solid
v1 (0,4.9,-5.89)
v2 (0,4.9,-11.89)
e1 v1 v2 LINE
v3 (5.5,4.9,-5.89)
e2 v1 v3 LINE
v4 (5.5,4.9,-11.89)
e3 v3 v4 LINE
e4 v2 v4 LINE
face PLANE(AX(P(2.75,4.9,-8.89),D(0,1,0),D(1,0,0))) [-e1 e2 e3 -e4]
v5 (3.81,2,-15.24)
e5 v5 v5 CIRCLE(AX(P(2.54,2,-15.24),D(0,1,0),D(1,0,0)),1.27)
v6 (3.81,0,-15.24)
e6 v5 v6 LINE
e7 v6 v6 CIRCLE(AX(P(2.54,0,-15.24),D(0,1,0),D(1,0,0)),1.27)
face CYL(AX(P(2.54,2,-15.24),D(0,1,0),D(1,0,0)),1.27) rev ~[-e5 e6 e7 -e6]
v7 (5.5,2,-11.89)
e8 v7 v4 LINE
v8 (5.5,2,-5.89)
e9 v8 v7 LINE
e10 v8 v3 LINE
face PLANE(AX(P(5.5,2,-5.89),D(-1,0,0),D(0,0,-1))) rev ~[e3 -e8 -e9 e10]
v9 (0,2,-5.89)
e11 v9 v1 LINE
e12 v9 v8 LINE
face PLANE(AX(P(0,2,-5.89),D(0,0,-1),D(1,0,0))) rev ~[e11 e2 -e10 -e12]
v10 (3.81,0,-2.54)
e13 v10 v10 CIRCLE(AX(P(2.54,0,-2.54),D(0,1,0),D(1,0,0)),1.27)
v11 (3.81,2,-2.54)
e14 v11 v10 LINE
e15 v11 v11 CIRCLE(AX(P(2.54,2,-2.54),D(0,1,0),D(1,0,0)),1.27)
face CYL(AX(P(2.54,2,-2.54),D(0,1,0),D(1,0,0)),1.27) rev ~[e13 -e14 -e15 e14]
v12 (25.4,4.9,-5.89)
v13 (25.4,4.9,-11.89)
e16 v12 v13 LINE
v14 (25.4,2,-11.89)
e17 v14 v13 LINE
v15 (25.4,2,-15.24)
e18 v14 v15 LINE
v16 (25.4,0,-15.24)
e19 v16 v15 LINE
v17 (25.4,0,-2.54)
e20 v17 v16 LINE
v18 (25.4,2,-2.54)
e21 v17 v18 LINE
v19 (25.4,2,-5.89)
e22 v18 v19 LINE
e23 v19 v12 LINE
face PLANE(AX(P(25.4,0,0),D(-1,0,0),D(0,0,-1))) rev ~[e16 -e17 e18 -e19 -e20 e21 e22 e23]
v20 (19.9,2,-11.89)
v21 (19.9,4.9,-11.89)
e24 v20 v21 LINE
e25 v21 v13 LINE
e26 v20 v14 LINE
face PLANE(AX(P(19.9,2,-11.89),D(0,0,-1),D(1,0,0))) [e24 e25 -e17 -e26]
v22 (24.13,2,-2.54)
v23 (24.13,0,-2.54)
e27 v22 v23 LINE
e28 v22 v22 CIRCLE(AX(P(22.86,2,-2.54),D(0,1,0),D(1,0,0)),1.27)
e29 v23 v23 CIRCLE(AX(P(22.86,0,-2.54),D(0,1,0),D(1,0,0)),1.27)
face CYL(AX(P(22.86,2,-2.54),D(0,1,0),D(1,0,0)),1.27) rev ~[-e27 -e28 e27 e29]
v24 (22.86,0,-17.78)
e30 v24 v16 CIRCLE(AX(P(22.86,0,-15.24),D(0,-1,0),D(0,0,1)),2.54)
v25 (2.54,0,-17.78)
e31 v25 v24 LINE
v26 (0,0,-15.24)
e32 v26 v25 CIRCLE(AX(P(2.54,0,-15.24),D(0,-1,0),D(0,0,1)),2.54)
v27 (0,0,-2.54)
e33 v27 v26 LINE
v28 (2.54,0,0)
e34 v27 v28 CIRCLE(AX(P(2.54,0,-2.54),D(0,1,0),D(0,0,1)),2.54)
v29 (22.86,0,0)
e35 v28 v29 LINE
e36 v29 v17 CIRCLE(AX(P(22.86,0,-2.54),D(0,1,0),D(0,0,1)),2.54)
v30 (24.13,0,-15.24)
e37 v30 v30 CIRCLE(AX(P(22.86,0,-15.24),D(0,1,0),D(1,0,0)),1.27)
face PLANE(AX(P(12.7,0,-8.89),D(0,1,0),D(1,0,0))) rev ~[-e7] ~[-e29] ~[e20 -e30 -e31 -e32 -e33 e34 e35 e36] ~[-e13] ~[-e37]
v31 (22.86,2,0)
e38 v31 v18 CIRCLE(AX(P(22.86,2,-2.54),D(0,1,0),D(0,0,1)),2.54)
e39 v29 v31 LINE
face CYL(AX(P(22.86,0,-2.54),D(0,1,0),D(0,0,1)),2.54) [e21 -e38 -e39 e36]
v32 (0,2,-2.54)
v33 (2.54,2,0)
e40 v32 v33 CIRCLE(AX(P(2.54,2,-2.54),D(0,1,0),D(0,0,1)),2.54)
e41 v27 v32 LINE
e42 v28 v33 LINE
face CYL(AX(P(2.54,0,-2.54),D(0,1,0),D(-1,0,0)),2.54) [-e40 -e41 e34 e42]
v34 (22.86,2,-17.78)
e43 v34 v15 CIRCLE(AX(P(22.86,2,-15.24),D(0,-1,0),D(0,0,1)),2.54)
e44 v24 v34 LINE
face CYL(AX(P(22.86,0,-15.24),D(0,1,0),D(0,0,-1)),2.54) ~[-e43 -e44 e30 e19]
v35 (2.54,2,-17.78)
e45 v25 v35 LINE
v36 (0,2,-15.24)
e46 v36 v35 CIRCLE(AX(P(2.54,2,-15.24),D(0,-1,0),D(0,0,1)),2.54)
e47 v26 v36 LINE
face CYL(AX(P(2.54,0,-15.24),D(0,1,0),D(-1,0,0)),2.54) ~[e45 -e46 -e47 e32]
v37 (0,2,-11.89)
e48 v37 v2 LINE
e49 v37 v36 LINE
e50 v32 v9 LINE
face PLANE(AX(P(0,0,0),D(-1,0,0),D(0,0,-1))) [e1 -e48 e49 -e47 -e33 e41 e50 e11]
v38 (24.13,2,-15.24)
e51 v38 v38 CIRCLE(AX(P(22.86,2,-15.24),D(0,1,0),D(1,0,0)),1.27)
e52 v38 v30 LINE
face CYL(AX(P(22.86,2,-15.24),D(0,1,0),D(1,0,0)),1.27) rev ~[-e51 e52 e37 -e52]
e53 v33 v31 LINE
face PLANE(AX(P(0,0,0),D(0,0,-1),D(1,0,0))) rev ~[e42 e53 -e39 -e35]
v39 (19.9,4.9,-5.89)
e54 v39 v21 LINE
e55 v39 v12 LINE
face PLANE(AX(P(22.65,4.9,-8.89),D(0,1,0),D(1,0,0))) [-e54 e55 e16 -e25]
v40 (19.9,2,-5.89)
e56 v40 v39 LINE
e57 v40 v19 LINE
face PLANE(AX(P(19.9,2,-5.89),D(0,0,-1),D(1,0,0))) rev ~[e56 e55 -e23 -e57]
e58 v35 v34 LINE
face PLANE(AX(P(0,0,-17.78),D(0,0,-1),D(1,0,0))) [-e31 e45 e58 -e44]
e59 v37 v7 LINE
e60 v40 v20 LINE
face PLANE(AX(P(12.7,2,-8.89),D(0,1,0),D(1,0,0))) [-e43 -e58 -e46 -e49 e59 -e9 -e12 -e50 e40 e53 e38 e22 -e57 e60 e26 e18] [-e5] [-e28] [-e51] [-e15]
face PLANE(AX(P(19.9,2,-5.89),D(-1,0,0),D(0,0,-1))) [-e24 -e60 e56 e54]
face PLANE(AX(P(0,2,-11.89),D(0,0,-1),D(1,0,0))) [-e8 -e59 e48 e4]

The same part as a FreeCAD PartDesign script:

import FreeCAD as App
import Part
import Sketcher
from FreeCAD import Vector
Q = App.Units.Quantity


def edges_at(feature, points):
    """Names of the edges that pass closest to the given points."""
    edges = feature.Shape.Edges
    near = lambda p: min(range(len(edges)), key=lambda i: edges[i].distToShape(Part.Vertex(*p))[0])
    return sorted({f"Edge{near(p) + 1}" for p in points})


def add_polygon(sketch, points):
    """Adds a closed chain of lines whose ends are joined by coincident constraints."""
    first, n = sketch.GeometryCount, len(points)
    for a, b in zip(points, points[1:] + points[:1]):
        sketch.addGeometry(Part.LineSegment(App.Vector(*a, 0), App.Vector(*b, 0)), False)
    for i in range(n):
        sketch.addConstraint(Sketcher.Constraint("Coincident", first + i, 2, first + (i + 1) % n, 1))

doc = App.newDocument("Part")
body = doc.addObject("PartDesign::Body", "Body")

# Sketch on XZ plane
sketch1 = body.newObject("Sketcher::SketchObject", "Sketch")
sketch1.AttachmentSupport = (doc.getObject("XZ_Plane"), [""])
sketch1.MapMode = "FlatFace"
add_polygon(sketch1, [(0, -18), (0, 0), (25, 0), (25, -18)])  # lines 0-3
sketch1.addConstraint([
    Sketcher.Constraint("Vertical", 0),
    Sketcher.Constraint("Horizontal", 1),
    Sketcher.Constraint("Vertical", 2),
    Sketcher.Constraint("Horizontal", 3),
    Sketcher.Constraint("Coincident", 0, 2, -1, 1),
    Sketcher.Constraint("DistanceX", 1, 1, 1, 2, Q("25.4 mm")),
    Sketcher.Constraint("DistanceY", 0, 1, 0, 2, Q("17.78 mm")),
])
pad1 = body.newObject("PartDesign::Pad", "Pad")
pad1.Profile = sketch1
pad1.Length = 2
pad1.Reversed = True

# Sketch on XZ plane
sketch2 = body.newObject("Sketcher::SketchObject", "Sketch001")
sketch2.AttachmentSupport = (doc.getObject("XZ_Plane"), [""])
sketch2.MapMode = "FlatFace"
sketch2.AttachmentOffset = App.Placement(Vector(0, 0, -2), App.Rotation())
sketch2.addGeometry([
    Part.Circle(Vector(2.5, -15.2, 0), Vector(0, 0, 1), 1.3),
    Part.Circle(Vector(22.9, -15.2, 0), Vector(0, 0, 1), 1.3),
    Part.Circle(Vector(22.9, -2.5, 0), Vector(0, 0, 1), 1.3),
    Part.Circle(Vector(2.5, -2.5, 0), Vector(0, 0, 1), 1.3),
], False)
sketch2.addConstraint([
    Sketcher.Constraint("Equal", 0, 1),
    Sketcher.Constraint("Equal", 1, 2),
    Sketcher.Constraint("Equal", 2, 3),
    Sketcher.Constraint("Horizontal", 0, 3, 1, 3),
    Sketcher.Constraint("Horizontal", 2, 3, 3, 3),
    Sketcher.Constraint("Vertical", 1, 3, 2, 3),
    Sketcher.Constraint("Vertical", 0, 3, 3, 3),
    Sketcher.Constraint("Diameter", 0, Q("2.54 mm")),
    Sketcher.Constraint("DistanceY", 1, 3, 2, 3, Q("12.7 mm")),
    Sketcher.Constraint("DistanceX", -1, 1, 0, 3, Q("2.54 mm")),
    Sketcher.Constraint("DistanceY", 0, 3, -1, 1, Q("15.24 mm")),
    Sketcher.Constraint("DistanceX", -1, 1, 1, 3, Q("22.86 mm")),
])
pocket1 = body.newObject("PartDesign::Pocket", "Pocket")
pocket1.Profile = sketch2
pocket1.Type = "ThroughAll"
pocket1.Reversed = True

# Sketch on XZ plane
sketch3 = body.newObject("Sketcher::SketchObject", "Sketch002")
sketch3.AttachmentSupport = (doc.getObject("XZ_Plane"), [""])
sketch3.MapMode = "FlatFace"
sketch3.AttachmentOffset = App.Placement(Vector(0, 0, -2), App.Rotation())
add_polygon(sketch3, [(20, -12), (20, -6), (25, -6), (25, -12)])  # lines 0-3
add_polygon(sketch3, [(0, -12), (0, -6), (6, -6), (6, -12)])  # lines 4-7
sketch3.addConstraint([
    Sketcher.Constraint("Vertical", 0),
    Sketcher.Constraint("Horizontal", 1),
    Sketcher.Constraint("Vertical", 2),
    Sketcher.Constraint("Horizontal", 3),
    Sketcher.Constraint("Vertical", 4),
    Sketcher.Constraint("Horizontal", 5),
    Sketcher.Constraint("Vertical", 6),
    Sketcher.Constraint("Horizontal", 7),
    Sketcher.Constraint("PointOnObject", 4, 2, -2),
    Sketcher.Constraint("Horizontal", 1, 2, 4, 2),
    Sketcher.Constraint("Horizontal", 3, 2, 6, 2),
    Sketcher.Constraint("Equal", 3, 5),
    Sketcher.Constraint("DistanceY", 0, 1, 0, 2, Q("6 mm")),
    Sketcher.Constraint("DistanceX", 1, 1, 1, 2, Q("5.5 mm")),
    Sketcher.Constraint("DistanceX", -1, 1, 0, 2, Q("19.9 mm")),
    Sketcher.Constraint("DistanceY", 0, 2, -1, 1, Q("5.89 mm")),
])
pad2 = body.newObject("PartDesign::Pad", "Pad001")
pad2.Profile = sketch3
pad2.Length = 2.9
pad2.Reversed = True
doc.recompute()

fillet = body.newObject("PartDesign::Fillet", "Fillet")
fillet.Base = (pad2, edges_at(pad2, [
    (0, 1, -17.78),
    (25.4, 1, -17.78),
    (25.4, 1, 0),
    (0, 1, 0),
]))
fillet.Radius = 2.54

doc.recompute()
